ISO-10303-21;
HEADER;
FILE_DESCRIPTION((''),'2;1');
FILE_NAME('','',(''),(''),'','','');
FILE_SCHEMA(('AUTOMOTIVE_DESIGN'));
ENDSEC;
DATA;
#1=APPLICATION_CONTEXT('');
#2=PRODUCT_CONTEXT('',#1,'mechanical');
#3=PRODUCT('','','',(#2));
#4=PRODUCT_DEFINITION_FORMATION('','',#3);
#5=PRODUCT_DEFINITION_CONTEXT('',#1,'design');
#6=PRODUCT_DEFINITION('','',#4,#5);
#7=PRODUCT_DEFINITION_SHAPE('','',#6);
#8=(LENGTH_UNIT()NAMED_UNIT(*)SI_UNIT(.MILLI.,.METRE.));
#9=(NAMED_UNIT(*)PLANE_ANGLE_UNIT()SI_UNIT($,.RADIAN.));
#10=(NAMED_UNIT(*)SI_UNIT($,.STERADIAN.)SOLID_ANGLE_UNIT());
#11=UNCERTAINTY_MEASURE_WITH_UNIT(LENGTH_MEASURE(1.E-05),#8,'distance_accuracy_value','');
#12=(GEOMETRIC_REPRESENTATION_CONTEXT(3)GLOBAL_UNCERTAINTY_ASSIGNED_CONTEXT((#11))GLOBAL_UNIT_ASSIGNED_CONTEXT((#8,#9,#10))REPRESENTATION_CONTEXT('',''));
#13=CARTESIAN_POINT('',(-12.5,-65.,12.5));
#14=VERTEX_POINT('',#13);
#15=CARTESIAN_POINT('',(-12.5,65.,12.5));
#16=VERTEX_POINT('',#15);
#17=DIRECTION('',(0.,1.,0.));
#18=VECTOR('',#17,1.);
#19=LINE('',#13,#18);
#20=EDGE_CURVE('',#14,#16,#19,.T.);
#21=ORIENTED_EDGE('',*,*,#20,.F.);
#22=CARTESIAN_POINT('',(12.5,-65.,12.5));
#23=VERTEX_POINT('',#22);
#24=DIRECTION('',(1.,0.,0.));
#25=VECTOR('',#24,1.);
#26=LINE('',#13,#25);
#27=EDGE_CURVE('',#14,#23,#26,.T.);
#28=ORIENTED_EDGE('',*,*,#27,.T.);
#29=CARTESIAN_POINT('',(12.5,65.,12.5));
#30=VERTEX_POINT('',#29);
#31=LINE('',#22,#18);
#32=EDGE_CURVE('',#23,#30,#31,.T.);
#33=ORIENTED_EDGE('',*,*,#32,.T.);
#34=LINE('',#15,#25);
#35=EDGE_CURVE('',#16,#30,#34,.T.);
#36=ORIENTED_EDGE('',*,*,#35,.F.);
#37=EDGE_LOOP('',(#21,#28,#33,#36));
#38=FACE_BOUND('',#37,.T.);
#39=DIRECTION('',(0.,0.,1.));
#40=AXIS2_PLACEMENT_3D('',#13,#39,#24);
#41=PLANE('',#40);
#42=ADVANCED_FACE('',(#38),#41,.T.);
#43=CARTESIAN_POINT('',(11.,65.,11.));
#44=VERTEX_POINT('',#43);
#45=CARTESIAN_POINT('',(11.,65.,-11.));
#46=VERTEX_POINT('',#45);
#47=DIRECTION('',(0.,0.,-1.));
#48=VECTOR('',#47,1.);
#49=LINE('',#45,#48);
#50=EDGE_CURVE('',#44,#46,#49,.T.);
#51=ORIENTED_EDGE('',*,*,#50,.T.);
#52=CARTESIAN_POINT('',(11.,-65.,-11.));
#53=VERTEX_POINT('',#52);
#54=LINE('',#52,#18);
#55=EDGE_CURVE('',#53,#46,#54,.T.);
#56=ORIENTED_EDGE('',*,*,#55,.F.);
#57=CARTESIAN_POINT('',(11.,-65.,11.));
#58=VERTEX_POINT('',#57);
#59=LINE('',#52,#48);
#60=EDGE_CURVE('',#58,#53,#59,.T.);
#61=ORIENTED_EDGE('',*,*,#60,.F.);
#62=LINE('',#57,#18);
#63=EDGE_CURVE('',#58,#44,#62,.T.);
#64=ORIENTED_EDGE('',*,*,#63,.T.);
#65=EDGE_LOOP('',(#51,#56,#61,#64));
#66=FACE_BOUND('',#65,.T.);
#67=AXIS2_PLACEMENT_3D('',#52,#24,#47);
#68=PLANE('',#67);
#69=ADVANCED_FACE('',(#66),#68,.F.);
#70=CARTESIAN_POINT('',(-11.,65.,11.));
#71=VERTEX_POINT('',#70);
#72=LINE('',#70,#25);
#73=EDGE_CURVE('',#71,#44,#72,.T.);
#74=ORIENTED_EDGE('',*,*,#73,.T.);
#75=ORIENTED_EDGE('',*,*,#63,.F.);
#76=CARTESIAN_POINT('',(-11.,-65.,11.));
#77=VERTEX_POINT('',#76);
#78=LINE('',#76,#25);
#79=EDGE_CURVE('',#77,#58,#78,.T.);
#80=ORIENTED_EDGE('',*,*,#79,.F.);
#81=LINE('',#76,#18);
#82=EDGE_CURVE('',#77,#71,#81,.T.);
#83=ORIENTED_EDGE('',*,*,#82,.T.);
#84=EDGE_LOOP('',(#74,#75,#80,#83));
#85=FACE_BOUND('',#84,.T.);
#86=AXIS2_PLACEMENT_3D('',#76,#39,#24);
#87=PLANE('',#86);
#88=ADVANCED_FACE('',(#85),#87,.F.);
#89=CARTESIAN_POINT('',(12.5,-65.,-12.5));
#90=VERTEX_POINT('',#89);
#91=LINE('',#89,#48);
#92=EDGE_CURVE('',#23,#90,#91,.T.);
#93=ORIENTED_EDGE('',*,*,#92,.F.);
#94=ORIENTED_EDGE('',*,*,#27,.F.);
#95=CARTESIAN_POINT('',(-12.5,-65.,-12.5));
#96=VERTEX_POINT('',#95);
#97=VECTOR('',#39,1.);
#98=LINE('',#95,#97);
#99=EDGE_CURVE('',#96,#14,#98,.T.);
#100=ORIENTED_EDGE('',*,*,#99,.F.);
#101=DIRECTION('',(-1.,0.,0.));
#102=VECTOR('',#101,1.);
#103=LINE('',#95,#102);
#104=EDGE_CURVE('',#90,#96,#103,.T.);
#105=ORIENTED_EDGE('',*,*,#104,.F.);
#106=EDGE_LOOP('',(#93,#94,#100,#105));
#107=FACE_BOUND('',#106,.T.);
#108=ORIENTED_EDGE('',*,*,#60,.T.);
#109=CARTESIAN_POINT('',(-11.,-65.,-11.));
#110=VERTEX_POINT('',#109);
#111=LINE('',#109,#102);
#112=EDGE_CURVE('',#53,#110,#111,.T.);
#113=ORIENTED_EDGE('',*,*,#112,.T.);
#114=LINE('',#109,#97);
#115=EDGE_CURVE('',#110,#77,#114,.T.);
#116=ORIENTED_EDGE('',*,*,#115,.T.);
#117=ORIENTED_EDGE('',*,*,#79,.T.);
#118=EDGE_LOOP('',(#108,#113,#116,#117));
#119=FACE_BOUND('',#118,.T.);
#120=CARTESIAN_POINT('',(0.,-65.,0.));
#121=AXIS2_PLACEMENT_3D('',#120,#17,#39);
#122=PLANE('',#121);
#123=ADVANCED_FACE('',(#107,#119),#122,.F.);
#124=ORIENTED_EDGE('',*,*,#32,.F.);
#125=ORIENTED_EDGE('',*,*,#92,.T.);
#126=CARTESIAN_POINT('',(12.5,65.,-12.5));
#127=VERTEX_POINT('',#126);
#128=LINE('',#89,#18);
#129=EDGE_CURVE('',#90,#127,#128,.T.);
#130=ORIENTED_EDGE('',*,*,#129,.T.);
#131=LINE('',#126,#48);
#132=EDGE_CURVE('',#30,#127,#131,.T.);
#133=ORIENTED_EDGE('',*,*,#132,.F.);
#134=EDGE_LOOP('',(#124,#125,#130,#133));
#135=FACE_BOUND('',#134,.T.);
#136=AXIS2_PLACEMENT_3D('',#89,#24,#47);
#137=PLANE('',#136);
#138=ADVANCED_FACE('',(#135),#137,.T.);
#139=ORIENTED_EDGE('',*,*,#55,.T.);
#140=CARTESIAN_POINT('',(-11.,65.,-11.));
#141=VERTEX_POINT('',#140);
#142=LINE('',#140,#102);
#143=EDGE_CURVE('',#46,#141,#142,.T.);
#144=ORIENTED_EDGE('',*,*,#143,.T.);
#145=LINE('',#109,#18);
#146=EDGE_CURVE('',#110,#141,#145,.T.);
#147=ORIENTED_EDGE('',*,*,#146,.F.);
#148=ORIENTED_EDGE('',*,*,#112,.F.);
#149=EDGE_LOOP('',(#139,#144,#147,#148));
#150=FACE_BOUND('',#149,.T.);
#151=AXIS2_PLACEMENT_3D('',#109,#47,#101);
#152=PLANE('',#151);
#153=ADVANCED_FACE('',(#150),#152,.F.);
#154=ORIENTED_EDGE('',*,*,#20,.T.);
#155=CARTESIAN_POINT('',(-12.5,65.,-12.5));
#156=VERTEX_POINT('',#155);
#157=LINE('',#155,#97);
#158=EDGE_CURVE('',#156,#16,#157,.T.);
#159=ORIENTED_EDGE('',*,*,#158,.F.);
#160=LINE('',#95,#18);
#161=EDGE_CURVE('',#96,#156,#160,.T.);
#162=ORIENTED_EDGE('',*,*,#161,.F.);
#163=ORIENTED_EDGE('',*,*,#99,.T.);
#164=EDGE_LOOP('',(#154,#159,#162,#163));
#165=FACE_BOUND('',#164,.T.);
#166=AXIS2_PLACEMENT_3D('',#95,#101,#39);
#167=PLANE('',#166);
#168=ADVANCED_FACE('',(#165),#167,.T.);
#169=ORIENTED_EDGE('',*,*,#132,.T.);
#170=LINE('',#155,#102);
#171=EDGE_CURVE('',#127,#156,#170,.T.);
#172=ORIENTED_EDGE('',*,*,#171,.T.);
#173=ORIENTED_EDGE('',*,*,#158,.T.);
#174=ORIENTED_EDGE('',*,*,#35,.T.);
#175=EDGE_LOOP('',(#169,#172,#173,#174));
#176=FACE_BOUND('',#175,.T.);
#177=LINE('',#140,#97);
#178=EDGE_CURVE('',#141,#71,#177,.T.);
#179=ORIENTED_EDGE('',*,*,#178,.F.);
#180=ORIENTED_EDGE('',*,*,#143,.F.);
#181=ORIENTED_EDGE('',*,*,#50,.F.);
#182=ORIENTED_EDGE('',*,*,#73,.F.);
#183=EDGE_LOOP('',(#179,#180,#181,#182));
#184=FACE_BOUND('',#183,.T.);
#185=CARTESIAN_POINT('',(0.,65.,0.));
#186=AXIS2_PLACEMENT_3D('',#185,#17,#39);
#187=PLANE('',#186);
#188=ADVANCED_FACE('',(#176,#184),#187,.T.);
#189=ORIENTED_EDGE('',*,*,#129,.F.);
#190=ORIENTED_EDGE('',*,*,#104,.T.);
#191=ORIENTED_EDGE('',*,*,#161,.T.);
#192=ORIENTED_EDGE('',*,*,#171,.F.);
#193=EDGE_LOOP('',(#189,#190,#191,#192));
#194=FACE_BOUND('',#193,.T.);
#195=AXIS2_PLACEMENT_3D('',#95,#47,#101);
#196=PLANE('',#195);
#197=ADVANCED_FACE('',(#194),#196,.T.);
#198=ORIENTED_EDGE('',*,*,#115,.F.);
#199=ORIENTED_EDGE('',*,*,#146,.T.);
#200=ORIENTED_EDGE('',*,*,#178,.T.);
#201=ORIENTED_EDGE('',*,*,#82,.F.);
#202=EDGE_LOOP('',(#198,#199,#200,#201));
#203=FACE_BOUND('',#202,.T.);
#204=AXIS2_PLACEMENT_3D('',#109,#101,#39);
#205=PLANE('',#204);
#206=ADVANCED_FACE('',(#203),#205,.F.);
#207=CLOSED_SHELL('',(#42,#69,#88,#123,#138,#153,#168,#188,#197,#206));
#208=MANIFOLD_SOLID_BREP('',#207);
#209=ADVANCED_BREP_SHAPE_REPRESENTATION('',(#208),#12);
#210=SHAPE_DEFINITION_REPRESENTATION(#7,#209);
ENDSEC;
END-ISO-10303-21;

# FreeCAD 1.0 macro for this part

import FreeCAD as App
import Part
import Sketcher
from FreeCAD import Vector


def add_polygon(sketch, points):
    """Adds a closed chain of lines whose ends are joined by coincident constraints."""
    first, n = sketch.GeometryCount, len(points)
    for a, b in zip(points, points[1:] + points[:1]):
        sketch.addGeometry(Part.LineSegment(App.Vector(*a, 0), App.Vector(*b, 0)), False)
    for i in range(n):
        sketch.addConstraint(Sketcher.Constraint("Coincident", first + i, 2, first + (i + 1) % n, 1))

doc = App.newDocument("Part")
params = doc.addObject("Spreadsheet::Sheet", "Params")
for row, (alias, value) in enumerate([
    ("sketch1_width", "25 mm"),
    ("sketch1_width2", "22 mm"),
    ("pad1_length", "65 mm"),
    ("pad1_length2", "65 mm"),
], start=1):
    params.set(f"A{row}", alias)
    params.set(f"B{row}", "=" + value)
    params.setAlias(f"B{row}", alias)

body = doc.addObject("PartDesign::Body", "Body")

# Sketch on XZ plane
sketch1 = body.newObject("Sketcher::SketchObject", "Sketch")
sketch1.AttachmentSupport = (doc.getObject("XZ_Plane"), [""])
sketch1.MapMode = "FlatFace"
add_polygon(sketch1, [(-12.5, -12.5), (-12.5, 12.5), (12.5, 12.5), (12.5, -12.5)])  # lines 0-3
add_polygon(sketch1, [(11, 11), (-11, 11), (-11, -11), (11, -11)])  # lines 4-7
sketch1.addConstraint(Sketcher.Constraint("Vertical", 0))
sketch1.addConstraint(Sketcher.Constraint("Horizontal", 1))
sketch1.addConstraint(Sketcher.Constraint("Vertical", 2))
sketch1.addConstraint(Sketcher.Constraint("Horizontal", 3))
sketch1.addConstraint(Sketcher.Constraint("Horizontal", 4))
sketch1.addConstraint(Sketcher.Constraint("Vertical", 5))
sketch1.addConstraint(Sketcher.Constraint("Horizontal", 6))
sketch1.addConstraint(Sketcher.Constraint("Vertical", 7))
sketch1.addConstraint(Sketcher.Constraint("Symmetric", 0, 2, 2, 2, -1, 1))
sketch1.addConstraint(Sketcher.Constraint("Symmetric", 4, 2, 6, 2, -1, 1))
sketch1.addConstraint(Sketcher.Constraint("Equal", 3, 0))
sketch1.addConstraint(Sketcher.Constraint("Equal", 6, 5))
sketch1.addConstraint(Sketcher.Constraint("DistanceX", 1, 1, 1, 2, 25.0))
sketch1.addConstraint(Sketcher.Constraint("DistanceX", 4, 2, 4, 1, 22.0))
sketch1.setExpression("Constraints[20]", "Params.sketch1_width")
sketch1.setExpression("Constraints[21]", "Params.sketch1_width2")
pad1 = body.newObject("PartDesign::Pad", "Pad")
pad1.Profile = sketch1
pad1.Type = "TwoLengths"
pad1.setExpression("Length", "Params.pad1_length")
pad1.setExpression("Length2", "Params.pad1_length2")
pad1.Reversed = True

doc.recompute()
